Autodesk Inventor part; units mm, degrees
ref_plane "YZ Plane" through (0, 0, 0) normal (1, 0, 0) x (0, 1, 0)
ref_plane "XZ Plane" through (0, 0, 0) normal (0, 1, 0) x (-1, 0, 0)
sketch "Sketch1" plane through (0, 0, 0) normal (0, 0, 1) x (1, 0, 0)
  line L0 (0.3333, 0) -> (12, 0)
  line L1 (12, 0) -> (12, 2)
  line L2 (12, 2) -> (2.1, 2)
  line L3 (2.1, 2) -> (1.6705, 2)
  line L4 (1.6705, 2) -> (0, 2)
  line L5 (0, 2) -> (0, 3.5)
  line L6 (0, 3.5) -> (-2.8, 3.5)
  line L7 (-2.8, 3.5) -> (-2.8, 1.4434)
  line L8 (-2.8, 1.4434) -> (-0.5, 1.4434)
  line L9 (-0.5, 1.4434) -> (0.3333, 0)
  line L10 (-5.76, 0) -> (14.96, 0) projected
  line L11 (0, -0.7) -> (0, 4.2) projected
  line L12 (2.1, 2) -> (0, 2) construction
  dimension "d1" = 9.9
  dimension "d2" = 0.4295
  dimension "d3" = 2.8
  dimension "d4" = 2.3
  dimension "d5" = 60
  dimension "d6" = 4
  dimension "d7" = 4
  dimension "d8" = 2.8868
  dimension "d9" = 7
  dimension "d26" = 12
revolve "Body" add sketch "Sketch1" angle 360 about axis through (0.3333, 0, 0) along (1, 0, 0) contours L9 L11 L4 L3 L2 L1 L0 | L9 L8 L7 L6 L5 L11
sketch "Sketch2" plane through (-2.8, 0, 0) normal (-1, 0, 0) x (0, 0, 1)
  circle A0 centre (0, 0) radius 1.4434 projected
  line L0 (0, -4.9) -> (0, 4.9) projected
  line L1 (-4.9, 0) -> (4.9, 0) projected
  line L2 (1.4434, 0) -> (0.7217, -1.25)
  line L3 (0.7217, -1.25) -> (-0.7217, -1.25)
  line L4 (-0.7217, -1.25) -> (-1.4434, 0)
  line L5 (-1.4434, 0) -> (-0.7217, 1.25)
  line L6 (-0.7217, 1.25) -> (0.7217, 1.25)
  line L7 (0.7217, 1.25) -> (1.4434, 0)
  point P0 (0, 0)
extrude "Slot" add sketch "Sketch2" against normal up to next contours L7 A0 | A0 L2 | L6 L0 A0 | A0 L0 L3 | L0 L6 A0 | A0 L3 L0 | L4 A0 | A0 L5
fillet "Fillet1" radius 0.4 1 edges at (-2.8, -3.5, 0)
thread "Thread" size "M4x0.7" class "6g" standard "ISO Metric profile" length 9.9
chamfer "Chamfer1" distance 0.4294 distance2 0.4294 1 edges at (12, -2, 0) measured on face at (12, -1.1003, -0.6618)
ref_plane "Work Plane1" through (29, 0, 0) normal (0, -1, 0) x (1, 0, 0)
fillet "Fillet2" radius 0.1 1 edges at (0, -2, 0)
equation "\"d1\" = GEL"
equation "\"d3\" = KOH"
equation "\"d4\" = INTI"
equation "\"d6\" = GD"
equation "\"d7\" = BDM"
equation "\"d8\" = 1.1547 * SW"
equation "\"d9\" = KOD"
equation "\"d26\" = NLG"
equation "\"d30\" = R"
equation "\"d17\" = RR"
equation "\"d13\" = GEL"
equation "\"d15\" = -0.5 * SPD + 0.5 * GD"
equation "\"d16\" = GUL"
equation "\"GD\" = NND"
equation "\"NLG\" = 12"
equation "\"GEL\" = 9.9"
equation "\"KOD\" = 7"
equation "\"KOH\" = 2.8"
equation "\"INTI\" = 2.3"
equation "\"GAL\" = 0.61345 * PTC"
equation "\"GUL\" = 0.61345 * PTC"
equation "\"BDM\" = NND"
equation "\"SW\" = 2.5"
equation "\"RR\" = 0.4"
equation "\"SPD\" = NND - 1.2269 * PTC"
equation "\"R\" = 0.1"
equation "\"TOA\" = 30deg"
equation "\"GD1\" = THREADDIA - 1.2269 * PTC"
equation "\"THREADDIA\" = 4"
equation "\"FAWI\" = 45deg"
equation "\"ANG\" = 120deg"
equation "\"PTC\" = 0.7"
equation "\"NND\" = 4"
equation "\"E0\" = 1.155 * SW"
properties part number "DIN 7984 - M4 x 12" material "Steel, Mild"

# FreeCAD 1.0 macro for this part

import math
import FreeCAD as App
import Part
import Sketcher

V = App.Vector
Q = App.Units.Quantity


def edges_at(feature, points):
    """Names of the edges that pass closest to the given points."""
    edges = feature.Shape.Edges
    near = lambda p: min(range(len(edges)), key=lambda i: edges[i].distToShape(Part.Vertex(*p))[0])
    return sorted({f"Edge{near(p) + 1}" for p in points})

doc = App.newDocument("Part")
body = doc.addObject("PartDesign::Body", "Body")

# Sketch on XY plane
sketch1 = body.newObject("Sketcher::SketchObject", "Sketch")
sketch1.AttachmentSupport = (doc.getObject("XY_Plane"), [""])
sketch1.MapMode = "FlatFace"
sketch1.addGeometry([
    Part.LineSegment(V(0.3, 0, 0), V(12, 0, 0)),  # 0
    Part.LineSegment(V(12, 0, 0), V(12, 2, 0)),  # 1
    Part.LineSegment(V(12, 2, 0), V(0, 2, 0)),  # 2
    Part.LineSegment(V(0, 2, 0), V(0, 3.5, 0)),  # 3
    Part.LineSegment(V(0, 3.5, 0), V(-2.8, 3.5, 0)),  # 4
    Part.LineSegment(V(-2.8, 3.5, 0), V(-2.8, 1.4, 0)),  # 5
    Part.LineSegment(V(-2.8, 1.4, 0), V(-0.5, 1.4, 0)),  # 6
    Part.LineSegment(V(-0.5, 1.4, 0), V(0.3, 0, 0)),  # 7
], False)
sketch1.addConstraint([
    Sketcher.Constraint("Coincident", 0, 2, 1, 1),
    Sketcher.Constraint("Coincident", 1, 2, 2, 1),
    Sketcher.Constraint("Coincident", 2, 2, 3, 1),
    Sketcher.Constraint("Coincident", 3, 2, 4, 1),
    Sketcher.Constraint("Coincident", 4, 2, 5, 1),
    Sketcher.Constraint("Coincident", 5, 2, 6, 1),
    Sketcher.Constraint("Coincident", 6, 2, 7, 1),
    Sketcher.Constraint("Coincident", 7, 2, 0, 1),
    Sketcher.Constraint("Horizontal", 0),
    Sketcher.Constraint("Vertical", 1),
    Sketcher.Constraint("Horizontal", 2),
    Sketcher.Constraint("Vertical", 3),
    Sketcher.Constraint("Horizontal", 4),
    Sketcher.Constraint("Vertical", 5),
    Sketcher.Constraint("Horizontal", 6),
    Sketcher.Constraint("PointOnObject", 0, 2, -1),
    Sketcher.Constraint("PointOnObject", 2, 2, -2),
    Sketcher.Constraint("DistanceX", 2, 2, 2, 1, Q("12 mm")),
    Sketcher.Constraint("DistanceX", 4, 2, 4, 1, Q("2.8 mm")),
    Sketcher.Constraint("DistanceX", 6, 1, 6, 2, Q("2.3 mm")),
    Sketcher.Constraint("DistanceY", 1, 1, 1, 2, Q("2 mm")),
    Sketcher.Constraint("DistanceY", 3, 1, 3, 2, Q("1.5 mm")),
    Sketcher.Constraint("DistanceX", 0, 1, 0, 2, Q("11.6667 mm")),
    Sketcher.Constraint("DistanceY", 5, 2, 5, 1, Q("2.0566 mm")),
])
revolution = body.newObject("PartDesign::Revolution", "Revolution")
revolution.Profile = sketch1
revolution.ReferenceAxis = (sketch1, ["H_Axis"])
revolution.Angle = 360

# Sketch on YZ plane
sketch2 = body.newObject("Sketcher::SketchObject", "Sketch001")
sketch2.AttachmentSupport = (doc.getObject("YZ_Plane"), [""])
sketch2.MapMode = "FlatFace"
sketch2.AttachmentOffset = App.Placement(V(0, 0, -2.8), App.Rotation())
sketch2.addGeometry([
    Part.LineSegment(V(1.2, 0.7, 0), V(0, 1.4, 0)),  # 0
    Part.ArcOfCircle(Part.Circle(V(0, 0, 0), V(0, 0, 1), 1.4), math.radians(30), math.radians(90)),  # 1
    Part.ArcOfCircle(Part.Circle(V(0, 0, 0), V(0, 0, 1), 1.4), math.radians(90), math.radians(150)),  # 2
    Part.LineSegment(V(0, 1.4, 0), V(-1.2, 0.7, 0)),  # 3
    Part.ArcOfCircle(Part.Circle(V(0, 0, 0), V(0, 0, 1), 1.4), math.radians(-30), math.radians(30)),  # 4
    Part.LineSegment(V(1.2, 0.7, 0), V(1.2, -0.7, 0)),  # 5
    Part.LineSegment(V(-1.2, 0.7, 0), V(-1.2, -0.7, 0)),  # 6
    Part.ArcOfCircle(Part.Circle(V(0, 0, 0), V(0, 0, 1), 1.4), math.radians(150), math.radians(210)),  # 7
    Part.LineSegment(V(-1.2, -0.7, 0), V(0, -1.4, 0)),  # 8
    Part.ArcOfCircle(Part.Circle(V(0, 0, 0), V(0, 0, 1), 1.4), math.radians(-150), math.radians(-90)),  # 9
    Part.ArcOfCircle(Part.Circle(V(0, 0, 0), V(0, 0, 1), 1.4), math.radians(-90), math.radians(-30)),  # 10
    Part.LineSegment(V(0, -1.4, 0), V(1.2, -0.7, 0)),  # 11
], False)
sketch2.addConstraint([
    Sketcher.Constraint("Coincident", 0, 1, 1, 1),
    Sketcher.Constraint("Coincident", 1, 2, 0, 2),
    Sketcher.Constraint("Coincident", 2, 1, 3, 1),
    Sketcher.Constraint("Coincident", 3, 2, 2, 2),
    Sketcher.Constraint("Coincident", 4, 1, 5, 2),
    Sketcher.Constraint("Coincident", 5, 1, 4, 2),
    Sketcher.Constraint("Coincident", 6, 1, 7, 1),
    Sketcher.Constraint("Coincident", 7, 2, 6, 2),
    Sketcher.Constraint("Coincident", 8, 1, 9, 1),
    Sketcher.Constraint("Coincident", 9, 2, 8, 2),
    Sketcher.Constraint("Coincident", 10, 1, 11, 1),
    Sketcher.Constraint("Coincident", 11, 2, 10, 2),
    Sketcher.Constraint("Vertical", 5),
    Sketcher.Constraint("Vertical", 6),
    Sketcher.Constraint("Coincident", 1, 3, -1, 1),
    Sketcher.Constraint("Coincident", 2, 3, -1, 1),
    Sketcher.Constraint("Coincident", 4, 3, -1, 1),
    Sketcher.Constraint("Coincident", 7, 3, -1, 1),
    Sketcher.Constraint("Coincident", 9, 3, -1, 1),
    Sketcher.Constraint("Coincident", 10, 3, -1, 1),
    Sketcher.Constraint("Coincident", 2, 1, 1, 2),
    Sketcher.Constraint("Coincident", 5, 1, 0, 1),
    Sketcher.Constraint("Coincident", 6, 1, 3, 2),
    Sketcher.Constraint("Coincident", 8, 1, 7, 2),
    Sketcher.Constraint("Coincident", 10, 1, 9, 2),
    Sketcher.Constraint("PointOnObject", 1, 2, -2),
    Sketcher.Constraint("PointOnObject", 9, 2, -2),
    Sketcher.Constraint("Parallel", 0, 8),
    Sketcher.Constraint("Parallel", 3, 11),
    Sketcher.Constraint("Angle", 0, Q("149.9996 deg")),
    Sketcher.Constraint("Radius", 1, Q("1.4434 mm")),
])
pad1 = body.newObject("PartDesign::Pad", "Pad")
pad1.Profile = sketch2
pad1.Type = "UpToFirst"
doc.recompute()

fillet = body.newObject("PartDesign::Fillet", "Fillet")
fillet.Base = (pad1, edges_at(pad1, [(-2.8, -3.5, 0)]))
fillet.Radius = 0.4
doc.recompute()

chamfer = body.newObject("PartDesign::Chamfer", "Chamfer")
chamfer.Base = (fillet, edges_at(fillet, [(12, -2, 0)]))
chamfer.ChamferType = "Two distances"
chamfer.Size = 0.4294
chamfer.Size2 = 0.4294
doc.recompute()

fillet2 = body.newObject("PartDesign::Fillet", "Fillet001")
fillet2.Base = (chamfer, edges_at(chamfer, [(0, -2, 0)]))
fillet2.Radius = 0.1

doc.recompute()
